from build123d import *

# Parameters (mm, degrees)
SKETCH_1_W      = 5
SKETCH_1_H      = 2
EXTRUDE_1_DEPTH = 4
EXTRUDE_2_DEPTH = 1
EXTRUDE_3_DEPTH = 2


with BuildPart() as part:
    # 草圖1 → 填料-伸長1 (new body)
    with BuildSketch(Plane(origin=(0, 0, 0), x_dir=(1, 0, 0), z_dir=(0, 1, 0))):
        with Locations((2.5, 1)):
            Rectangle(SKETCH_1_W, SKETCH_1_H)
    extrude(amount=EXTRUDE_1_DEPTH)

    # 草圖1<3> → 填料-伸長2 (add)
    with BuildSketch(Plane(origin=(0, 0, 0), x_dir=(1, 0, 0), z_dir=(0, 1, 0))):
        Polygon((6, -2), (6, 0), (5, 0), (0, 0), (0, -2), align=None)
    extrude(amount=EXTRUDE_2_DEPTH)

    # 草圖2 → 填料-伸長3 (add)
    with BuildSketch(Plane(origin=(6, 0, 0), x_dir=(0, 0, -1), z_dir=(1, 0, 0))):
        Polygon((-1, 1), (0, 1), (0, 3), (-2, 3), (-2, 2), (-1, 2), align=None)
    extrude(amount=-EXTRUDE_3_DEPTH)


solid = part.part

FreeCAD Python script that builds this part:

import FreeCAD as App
import Part
import Sketcher
Q = App.Units.Quantity


def add_polygon(sketch, points):
    """Adds a closed chain of lines whose ends are joined by coincident constraints."""
    first, n = sketch.GeometryCount, len(points)
    for a, b in zip(points, points[1:] + points[:1]):
        sketch.addGeometry(Part.LineSegment(App.Vector(*a, 0), App.Vector(*b, 0)), False)
    for i in range(n):
        sketch.addConstraint(Sketcher.Constraint("Coincident", first + i, 2, first + (i + 1) % n, 1))

doc = App.newDocument("Part")
body = doc.addObject("PartDesign::Body", "Body")

# Sketch on XZ plane
sketch1 = body.newObject("Sketcher::SketchObject", "Sketch")
sketch1.AttachmentSupport = (doc.getObject("XZ_Plane"), [""])
sketch1.MapMode = "FlatFace"
add_polygon(sketch1, [(0, -2), (0, 0), (5, 0), (5, -2)])  # lines 0-3
sketch1.addConstraint([
    Sketcher.Constraint("Vertical", 0),
    Sketcher.Constraint("Horizontal", 1),
    Sketcher.Constraint("Vertical", 2),
    Sketcher.Constraint("Horizontal", 3),
    Sketcher.Constraint("Coincident", 0, 2, -1, 1),
    Sketcher.Constraint("DistanceX", 1, 1, 1, 2, Q("5 mm")),
    Sketcher.Constraint("DistanceY", 0, 1, 0, 2, Q("2 mm")),
])
pad1 = body.newObject("PartDesign::Pad", "Pad")
pad1.Profile = sketch1
pad1.Length = 4
pad1.Reversed = True

# Sketch on XZ plane
sketch2 = body.newObject("Sketcher::SketchObject", "Sketch001")
sketch2.AttachmentSupport = (doc.getObject("XZ_Plane"), [""])
sketch2.MapMode = "FlatFace"
add_polygon(sketch2, [(6, 2), (6, 0), (0, 0), (0, 2)])  # lines 0-3
sketch2.addConstraint([
    Sketcher.Constraint("Vertical", 0),
    Sketcher.Constraint("Horizontal", 1),
    Sketcher.Constraint("Vertical", 2),
    Sketcher.Constraint("Horizontal", 3),
    Sketcher.Constraint("Coincident", 1, 2, -1, 1),
    Sketcher.Constraint("DistanceX", 1, 2, 1, 1, Q("6 mm")),
    Sketcher.Constraint("DistanceY", 0, 2, 0, 1, Q("2 mm")),
])
pad2 = body.newObject("PartDesign::Pad", "Pad001")
pad2.Profile = sketch2
pad2.Length = 1
pad2.Reversed = True

# Sketch on YZ plane
sketch3 = body.newObject("Sketcher::SketchObject", "Sketch002")
sketch3.AttachmentSupport = (doc.getObject("YZ_Plane"), [""])
sketch3.MapMode = "FlatFace"
sketch3.AttachmentOffset = App.Placement(App.Vector(0, 0, 6), App.Rotation())
add_polygon(sketch3, [(1, 1), (1, 0), (3, 0), (3, 2), (2, 2), (2, 1)])  # lines 0-5
sketch3.addConstraint([
    Sketcher.Constraint("Vertical", 0),
    Sketcher.Constraint("Horizontal", 1),
    Sketcher.Constraint("Vertical", 2),
    Sketcher.Constraint("Horizontal", 3),
    Sketcher.Constraint("Vertical", 4),
    Sketcher.Constraint("Horizontal", 5),
    Sketcher.Constraint("PointOnObject", 0, 2, -1),
    Sketcher.Constraint("Equal", 3, 5),
    Sketcher.Constraint("Equal", 5, 0),
    Sketcher.Constraint("Equal", 1, 2),
    Sketcher.Constraint("DistanceX", 1, 1, 1, 2, Q("2 mm")),
    Sketcher.Constraint("DistanceX", -1, 1, 0, 2, Q("1 mm")),
])
pad3 = body.newObject("PartDesign::Pad", "Pad002")
pad3.Profile = sketch3
pad3.Length = 2
pad3.Reversed = True

doc.recompute()
